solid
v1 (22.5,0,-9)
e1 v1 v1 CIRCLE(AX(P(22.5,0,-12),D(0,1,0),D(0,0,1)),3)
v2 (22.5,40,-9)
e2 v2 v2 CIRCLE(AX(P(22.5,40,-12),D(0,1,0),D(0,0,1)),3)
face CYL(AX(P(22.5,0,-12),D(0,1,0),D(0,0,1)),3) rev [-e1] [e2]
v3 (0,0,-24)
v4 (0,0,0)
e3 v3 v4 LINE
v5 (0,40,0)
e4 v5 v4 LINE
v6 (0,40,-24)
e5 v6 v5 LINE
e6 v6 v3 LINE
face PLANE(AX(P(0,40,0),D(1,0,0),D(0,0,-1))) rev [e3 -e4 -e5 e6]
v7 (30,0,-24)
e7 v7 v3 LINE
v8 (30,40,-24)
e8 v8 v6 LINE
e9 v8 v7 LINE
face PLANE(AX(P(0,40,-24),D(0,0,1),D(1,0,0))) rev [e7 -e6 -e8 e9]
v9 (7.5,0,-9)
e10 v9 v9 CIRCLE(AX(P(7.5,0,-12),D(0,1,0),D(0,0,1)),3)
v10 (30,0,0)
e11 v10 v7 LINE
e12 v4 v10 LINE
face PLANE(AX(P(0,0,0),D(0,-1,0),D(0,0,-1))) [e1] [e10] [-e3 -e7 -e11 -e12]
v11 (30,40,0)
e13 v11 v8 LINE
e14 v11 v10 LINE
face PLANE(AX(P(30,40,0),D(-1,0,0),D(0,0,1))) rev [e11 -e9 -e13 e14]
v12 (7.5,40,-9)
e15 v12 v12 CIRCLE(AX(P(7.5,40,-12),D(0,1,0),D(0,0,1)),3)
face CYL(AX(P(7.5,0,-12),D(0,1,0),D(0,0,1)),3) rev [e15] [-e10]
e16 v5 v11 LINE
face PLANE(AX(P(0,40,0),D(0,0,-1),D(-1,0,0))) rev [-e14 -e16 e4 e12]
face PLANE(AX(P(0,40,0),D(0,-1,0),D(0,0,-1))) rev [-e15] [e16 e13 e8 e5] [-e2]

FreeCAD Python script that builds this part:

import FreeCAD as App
import Part
import Sketcher


def add_polygon(sketch, points):
    """Adds a closed chain of lines whose ends are joined by coincident constraints."""
    first, n = sketch.GeometryCount, len(points)
    for a, b in zip(points, points[1:] + points[:1]):
        sketch.addGeometry(Part.LineSegment(App.Vector(*a, 0), App.Vector(*b, 0)), False)
    for i in range(n):
        sketch.addConstraint(Sketcher.Constraint("Coincident", first + i, 2, first + (i + 1) % n, 1))

doc = App.newDocument("Part")
params = doc.addObject("Spreadsheet::Sheet", "Params")
for row, (alias, value) in enumerate([
    ("sketch1_width", "30 mm"),
    ("sketch1_height", "24 mm"),
    ("pad1_length", "40 mm"),
    ("sketch2_diameter", "6 mm"),
], start=1):
    params.set(f"A{row}", alias)
    params.set(f"B{row}", "=" + value)
    params.setAlias(f"B{row}", alias)

body = doc.addObject("PartDesign::Body", "Body")

# Sketch on XZ plane
sketch1 = body.newObject("Sketcher::SketchObject", "Sketch")
sketch1.AttachmentSupport = (doc.getObject("XZ_Plane"), [""])
sketch1.MapMode = "FlatFace"
add_polygon(sketch1, [(0, -24), (0, 0), (30, 0), (30, -24)])  # lines 0-3
sketch1.addConstraint([
    Sketcher.Constraint("Vertical", 0),
    Sketcher.Constraint("Horizontal", 1),
    Sketcher.Constraint("Vertical", 2),
    Sketcher.Constraint("Horizontal", 3),
    Sketcher.Constraint("Coincident", 0, 2, -1, 1),
    Sketcher.Constraint("DistanceX", 1, 1, 1, 2, 30.0),
    Sketcher.Constraint("DistanceY", 0, 1, 0, 2, 24.0),
])
sketch1.setExpression("Constraints[9]", "Params.sketch1_width")
sketch1.setExpression("Constraints[10]", "Params.sketch1_height")
pad1 = body.newObject("PartDesign::Pad", "Pad")
pad1.Profile = sketch1
pad1.setExpression("Length", "Params.pad1_length")
pad1.Reversed = True

# Sketch on XZ plane
sketch2 = body.newObject("Sketcher::SketchObject", "Sketch001")
sketch2.AttachmentSupport = (doc.getObject("XZ_Plane"), [""])
sketch2.MapMode = "FlatFace"
sketch2.AttachmentOffset = App.Placement(App.Vector(0, 0, -40), App.Rotation())
sketch2.addGeometry([
    Part.Circle(App.Vector(7.5, -12, 0), App.Vector(0, 0, 1), 3),
    Part.Circle(App.Vector(22.5, -12, 0), App.Vector(0, 0, 1), 3),
], False)
sketch2.addConstraint([
    Sketcher.Constraint("Equal", 0, 1),
    Sketcher.Constraint("Horizontal", 0, 3, 1, 3),
    Sketcher.Constraint("Diameter", 0, 6.0),
    Sketcher.Constraint("DistanceY", 0, 3, -1, 1, 12.0),
    Sketcher.Constraint("DistanceX", 0, 3, 1, 3, 15.0),
    Sketcher.Constraint("DistanceX", -1, 1, 0, 3, 7.5),
])
sketch2.setExpression("Constraints[2]", "Params.sketch2_diameter")
pocket1 = body.newObject("PartDesign::Pocket", "Pocket")
pocket1.Profile = sketch2
pocket1.Type = "ThroughAll"
pocket1.Reversed = True

doc.recompute()
